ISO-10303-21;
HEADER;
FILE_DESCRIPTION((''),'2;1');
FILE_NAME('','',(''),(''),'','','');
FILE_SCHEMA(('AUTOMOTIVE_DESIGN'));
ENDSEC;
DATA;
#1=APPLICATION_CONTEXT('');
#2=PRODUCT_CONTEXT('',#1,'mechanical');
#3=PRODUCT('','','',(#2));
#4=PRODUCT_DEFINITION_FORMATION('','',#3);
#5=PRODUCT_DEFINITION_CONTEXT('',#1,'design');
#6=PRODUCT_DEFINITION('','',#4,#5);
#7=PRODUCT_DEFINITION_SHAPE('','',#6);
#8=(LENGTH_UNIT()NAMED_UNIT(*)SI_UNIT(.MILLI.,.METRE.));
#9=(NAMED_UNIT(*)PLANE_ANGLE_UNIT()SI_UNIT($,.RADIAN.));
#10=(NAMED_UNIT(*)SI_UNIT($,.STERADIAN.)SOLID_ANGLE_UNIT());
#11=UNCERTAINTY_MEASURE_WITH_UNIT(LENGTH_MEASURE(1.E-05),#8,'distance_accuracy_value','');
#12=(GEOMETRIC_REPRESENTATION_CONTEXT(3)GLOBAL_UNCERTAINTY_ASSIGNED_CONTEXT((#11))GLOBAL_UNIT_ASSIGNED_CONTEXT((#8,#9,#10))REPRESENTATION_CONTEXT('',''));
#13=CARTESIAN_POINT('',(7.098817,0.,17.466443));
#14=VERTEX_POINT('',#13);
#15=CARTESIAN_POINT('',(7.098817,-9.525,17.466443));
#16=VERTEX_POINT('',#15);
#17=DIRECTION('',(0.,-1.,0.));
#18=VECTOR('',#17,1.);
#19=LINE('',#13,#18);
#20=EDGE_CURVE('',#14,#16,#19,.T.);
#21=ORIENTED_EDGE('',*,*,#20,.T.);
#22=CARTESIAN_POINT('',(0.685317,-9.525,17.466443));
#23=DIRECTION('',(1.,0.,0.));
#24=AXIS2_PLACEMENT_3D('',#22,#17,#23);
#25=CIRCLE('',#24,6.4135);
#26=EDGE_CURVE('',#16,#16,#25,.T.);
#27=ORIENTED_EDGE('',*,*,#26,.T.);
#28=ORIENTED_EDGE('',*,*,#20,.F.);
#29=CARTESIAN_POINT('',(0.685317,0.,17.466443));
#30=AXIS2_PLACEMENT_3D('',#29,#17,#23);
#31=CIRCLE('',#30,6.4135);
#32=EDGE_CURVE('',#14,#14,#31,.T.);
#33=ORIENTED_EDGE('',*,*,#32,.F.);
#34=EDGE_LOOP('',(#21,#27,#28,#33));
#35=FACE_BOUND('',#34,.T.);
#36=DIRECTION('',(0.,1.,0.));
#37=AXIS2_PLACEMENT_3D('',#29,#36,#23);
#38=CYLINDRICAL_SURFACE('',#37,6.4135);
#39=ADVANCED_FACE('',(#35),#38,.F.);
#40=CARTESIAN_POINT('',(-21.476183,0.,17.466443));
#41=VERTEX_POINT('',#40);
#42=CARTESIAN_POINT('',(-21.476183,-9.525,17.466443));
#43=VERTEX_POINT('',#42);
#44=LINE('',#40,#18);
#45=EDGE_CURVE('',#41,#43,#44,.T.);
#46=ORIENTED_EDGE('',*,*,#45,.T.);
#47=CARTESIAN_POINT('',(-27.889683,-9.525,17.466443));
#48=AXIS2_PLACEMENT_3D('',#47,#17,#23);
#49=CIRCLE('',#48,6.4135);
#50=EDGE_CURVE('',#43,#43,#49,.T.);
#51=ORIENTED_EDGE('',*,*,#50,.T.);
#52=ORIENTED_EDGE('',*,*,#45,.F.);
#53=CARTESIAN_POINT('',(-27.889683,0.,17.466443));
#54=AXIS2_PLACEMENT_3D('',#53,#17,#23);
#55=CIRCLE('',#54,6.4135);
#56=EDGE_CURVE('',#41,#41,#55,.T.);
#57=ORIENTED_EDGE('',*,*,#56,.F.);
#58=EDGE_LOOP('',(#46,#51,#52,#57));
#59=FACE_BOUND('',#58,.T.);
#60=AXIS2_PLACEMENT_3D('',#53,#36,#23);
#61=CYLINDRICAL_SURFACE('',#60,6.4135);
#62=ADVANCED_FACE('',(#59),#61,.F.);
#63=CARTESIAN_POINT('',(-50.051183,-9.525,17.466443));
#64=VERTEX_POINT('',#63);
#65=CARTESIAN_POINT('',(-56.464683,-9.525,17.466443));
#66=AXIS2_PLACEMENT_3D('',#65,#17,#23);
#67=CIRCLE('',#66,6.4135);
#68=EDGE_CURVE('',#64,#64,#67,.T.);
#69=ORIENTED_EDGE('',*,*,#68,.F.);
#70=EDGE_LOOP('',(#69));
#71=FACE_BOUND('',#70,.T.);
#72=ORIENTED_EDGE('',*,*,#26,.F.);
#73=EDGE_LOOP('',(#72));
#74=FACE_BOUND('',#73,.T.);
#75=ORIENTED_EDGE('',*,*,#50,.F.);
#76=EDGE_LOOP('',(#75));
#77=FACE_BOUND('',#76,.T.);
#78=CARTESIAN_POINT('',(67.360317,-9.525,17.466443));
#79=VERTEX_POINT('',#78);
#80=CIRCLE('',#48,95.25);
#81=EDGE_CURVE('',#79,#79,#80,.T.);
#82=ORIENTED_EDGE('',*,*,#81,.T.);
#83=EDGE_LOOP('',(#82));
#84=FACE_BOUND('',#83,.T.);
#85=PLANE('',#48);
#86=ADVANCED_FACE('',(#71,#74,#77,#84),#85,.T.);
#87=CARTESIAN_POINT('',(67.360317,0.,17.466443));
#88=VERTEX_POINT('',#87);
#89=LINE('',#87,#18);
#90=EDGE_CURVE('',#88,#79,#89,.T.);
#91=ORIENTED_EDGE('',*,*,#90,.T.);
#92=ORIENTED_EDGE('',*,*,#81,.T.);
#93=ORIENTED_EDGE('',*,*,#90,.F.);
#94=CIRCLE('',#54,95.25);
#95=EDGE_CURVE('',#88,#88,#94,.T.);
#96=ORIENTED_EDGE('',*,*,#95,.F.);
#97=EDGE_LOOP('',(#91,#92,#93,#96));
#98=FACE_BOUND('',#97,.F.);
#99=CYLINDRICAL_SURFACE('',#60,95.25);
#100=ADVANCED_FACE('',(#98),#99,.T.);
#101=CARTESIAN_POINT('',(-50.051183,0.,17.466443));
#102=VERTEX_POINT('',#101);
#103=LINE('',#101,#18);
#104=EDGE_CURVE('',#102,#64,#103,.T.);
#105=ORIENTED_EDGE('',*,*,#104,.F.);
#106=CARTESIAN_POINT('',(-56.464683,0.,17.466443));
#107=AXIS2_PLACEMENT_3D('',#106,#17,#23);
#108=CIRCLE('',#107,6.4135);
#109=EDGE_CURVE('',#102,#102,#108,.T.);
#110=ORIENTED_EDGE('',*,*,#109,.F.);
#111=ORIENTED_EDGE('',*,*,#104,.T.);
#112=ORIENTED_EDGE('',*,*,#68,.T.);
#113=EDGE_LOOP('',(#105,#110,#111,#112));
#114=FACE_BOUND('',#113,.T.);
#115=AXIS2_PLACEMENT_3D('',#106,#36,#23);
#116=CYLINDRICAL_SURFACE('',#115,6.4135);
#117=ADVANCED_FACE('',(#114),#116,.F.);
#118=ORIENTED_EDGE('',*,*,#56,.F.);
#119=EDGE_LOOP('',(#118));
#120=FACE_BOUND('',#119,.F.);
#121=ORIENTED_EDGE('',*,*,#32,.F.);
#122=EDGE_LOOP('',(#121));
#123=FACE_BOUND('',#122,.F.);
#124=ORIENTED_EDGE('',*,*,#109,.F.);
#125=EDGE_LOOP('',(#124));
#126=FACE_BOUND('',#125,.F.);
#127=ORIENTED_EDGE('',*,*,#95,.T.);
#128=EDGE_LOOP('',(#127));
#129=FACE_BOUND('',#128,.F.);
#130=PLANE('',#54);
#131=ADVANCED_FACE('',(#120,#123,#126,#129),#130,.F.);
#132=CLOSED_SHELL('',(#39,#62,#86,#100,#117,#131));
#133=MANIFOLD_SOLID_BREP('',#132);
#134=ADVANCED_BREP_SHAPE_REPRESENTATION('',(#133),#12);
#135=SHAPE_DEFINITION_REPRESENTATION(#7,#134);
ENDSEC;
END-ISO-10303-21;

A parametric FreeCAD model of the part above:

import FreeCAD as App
import Part
import Sketcher
from FreeCAD import Vector
Q = App.Units.Quantity

doc = App.newDocument("Part")
body = doc.addObject("PartDesign::Body", "Body")

# Sketch on XZ plane
sketch1 = body.newObject("Sketcher::SketchObject", "Sketch")
sketch1.AttachmentSupport = (doc.getObject("XZ_Plane"), [""])
sketch1.MapMode = "FlatFace"
sketch1.addGeometry(Part.Circle(Vector(-28, 17, 0), Vector(0, 0, 1), 95), False)
sketch1.addGeometry(Part.Circle(Vector(-56, 17, 0), Vector(0, 0, 1), 6), False)
sketch1.addGeometry(Part.Circle(Vector(-28, 17, 0), Vector(0, 0, 1), 6), False)
sketch1.addGeometry(Part.Circle(Vector(1, 17, 0), Vector(0, 0, 1), 6), False)
sketch1.addConstraint(Sketcher.Constraint("Coincident", 2, 3, 0, 3))
sketch1.addConstraint(Sketcher.Constraint("Equal", 1, 2))
sketch1.addConstraint(Sketcher.Constraint("Equal", 2, 3))
sketch1.addConstraint(Sketcher.Constraint("Horizontal", 0, 3, 1, 3))
sketch1.addConstraint(Sketcher.Constraint("Horizontal", 2, 3, 3, 3))
sketch1.addConstraint(Sketcher.Constraint("Diameter", 0, Q("7.5 in")))
sketch1.addConstraint(Sketcher.Constraint("Diameter", 1, Q("0.505 in")))
sketch1.addConstraint(Sketcher.Constraint("DistanceX", 1, 3, 3, 3, Q("2.25 in")))
sketch1.addConstraint(Sketcher.Constraint("DistanceX", 1, 3, 0, 3, Q("1.125 in")))
sketch1.addConstraint(Sketcher.Constraint("DistanceX", 0, 3, -1, 1, 27.889683))
sketch1.addConstraint(Sketcher.Constraint("DistanceY", -1, 1, 0, 3, 17.466443))
pad1 = body.newObject("PartDesign::Pad", "Pad")
pad1.Profile = sketch1
pad1.Length = Q("0.375 in")

doc.recompute()
